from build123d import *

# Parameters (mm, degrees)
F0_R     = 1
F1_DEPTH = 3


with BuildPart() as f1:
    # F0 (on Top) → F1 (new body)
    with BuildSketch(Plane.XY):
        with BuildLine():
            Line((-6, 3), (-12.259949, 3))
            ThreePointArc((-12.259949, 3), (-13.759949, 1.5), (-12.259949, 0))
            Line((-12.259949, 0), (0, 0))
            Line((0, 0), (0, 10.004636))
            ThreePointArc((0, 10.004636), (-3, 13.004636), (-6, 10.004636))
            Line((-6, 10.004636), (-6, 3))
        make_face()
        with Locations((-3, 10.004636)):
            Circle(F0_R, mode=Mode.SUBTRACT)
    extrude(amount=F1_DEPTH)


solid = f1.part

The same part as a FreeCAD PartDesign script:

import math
import FreeCAD as App
import Part
import Sketcher
from FreeCAD import Vector
Q = App.Units.Quantity

doc = App.newDocument("Part")
body = doc.addObject("PartDesign::Body", "Body")

sketch1 = body.newObject("Sketcher::SketchObject", "Sketch")
sketch1.AttachmentSupport = (doc.getObject("XY_Plane"), [""])
sketch1.MapMode = "FlatFace"
sketch1.addGeometry([
    Part.LineSegment(Vector(-6, 3, 0), Vector(-12.259949, 3, 0)),
    Part.ArcOfCircle(Part.Circle(Vector(-12.259949, 1.5, 0), Vector(0, 0, 1), 1.5), math.radians(90), math.radians(270)),
    Part.LineSegment(Vector(-12.259949, 0, 0), Vector(0, 0, 0)),
    Part.LineSegment(Vector(0, 0, 0), Vector(0, 10.004636, 0)),
    Part.ArcOfCircle(Part.Circle(Vector(-3, 10.004636, 0), Vector(0, 0, 1), 3), math.radians(0), math.radians(180)),
    Part.LineSegment(Vector(-6, 10.004636, 0), Vector(-6, 3, 0)),
    Part.Circle(Vector(-3, 10.004636, 0), Vector(0, 0, 1), 1),
], False)
sketch1.addConstraint([
    Sketcher.Constraint("Tangent", 0, 2, 1, 1),
    Sketcher.Constraint("Tangent", 1, 2, 2, 1),
    Sketcher.Constraint("Coincident", 2, 2, 3, 1),
    Sketcher.Constraint("Tangent", 3, 2, 4, 1),
    Sketcher.Constraint("Tangent", 4, 2, 5, 1),
    Sketcher.Constraint("Coincident", 5, 2, 0, 1),
    Sketcher.Constraint("Horizontal", 0),
    Sketcher.Constraint("Horizontal", 2),
    Sketcher.Constraint("Vertical", 3),
    Sketcher.Constraint("Vertical", 5),
    Sketcher.Constraint("Coincident", 2, 2, -1, 1),
    Sketcher.Constraint("Coincident", 6, 3, 4, 3),
    Sketcher.Constraint("Diameter", 6, Q("2 mm")),
    Sketcher.Constraint("Radius", 4, Q("3 mm")),
    Sketcher.Constraint("Radius", 1, Q("1.5 mm")),
    Sketcher.Constraint("DistanceX", 0, 2, 0, 1, Q("6.259949 mm")),
    Sketcher.Constraint("DistanceY", 3, 1, 3, 2, Q("10.004636 mm")),
])
pad1 = body.newObject("PartDesign::Pad", "Pad")
pad1.Profile = sketch1
pad1.Length = 3

doc.recompute()
